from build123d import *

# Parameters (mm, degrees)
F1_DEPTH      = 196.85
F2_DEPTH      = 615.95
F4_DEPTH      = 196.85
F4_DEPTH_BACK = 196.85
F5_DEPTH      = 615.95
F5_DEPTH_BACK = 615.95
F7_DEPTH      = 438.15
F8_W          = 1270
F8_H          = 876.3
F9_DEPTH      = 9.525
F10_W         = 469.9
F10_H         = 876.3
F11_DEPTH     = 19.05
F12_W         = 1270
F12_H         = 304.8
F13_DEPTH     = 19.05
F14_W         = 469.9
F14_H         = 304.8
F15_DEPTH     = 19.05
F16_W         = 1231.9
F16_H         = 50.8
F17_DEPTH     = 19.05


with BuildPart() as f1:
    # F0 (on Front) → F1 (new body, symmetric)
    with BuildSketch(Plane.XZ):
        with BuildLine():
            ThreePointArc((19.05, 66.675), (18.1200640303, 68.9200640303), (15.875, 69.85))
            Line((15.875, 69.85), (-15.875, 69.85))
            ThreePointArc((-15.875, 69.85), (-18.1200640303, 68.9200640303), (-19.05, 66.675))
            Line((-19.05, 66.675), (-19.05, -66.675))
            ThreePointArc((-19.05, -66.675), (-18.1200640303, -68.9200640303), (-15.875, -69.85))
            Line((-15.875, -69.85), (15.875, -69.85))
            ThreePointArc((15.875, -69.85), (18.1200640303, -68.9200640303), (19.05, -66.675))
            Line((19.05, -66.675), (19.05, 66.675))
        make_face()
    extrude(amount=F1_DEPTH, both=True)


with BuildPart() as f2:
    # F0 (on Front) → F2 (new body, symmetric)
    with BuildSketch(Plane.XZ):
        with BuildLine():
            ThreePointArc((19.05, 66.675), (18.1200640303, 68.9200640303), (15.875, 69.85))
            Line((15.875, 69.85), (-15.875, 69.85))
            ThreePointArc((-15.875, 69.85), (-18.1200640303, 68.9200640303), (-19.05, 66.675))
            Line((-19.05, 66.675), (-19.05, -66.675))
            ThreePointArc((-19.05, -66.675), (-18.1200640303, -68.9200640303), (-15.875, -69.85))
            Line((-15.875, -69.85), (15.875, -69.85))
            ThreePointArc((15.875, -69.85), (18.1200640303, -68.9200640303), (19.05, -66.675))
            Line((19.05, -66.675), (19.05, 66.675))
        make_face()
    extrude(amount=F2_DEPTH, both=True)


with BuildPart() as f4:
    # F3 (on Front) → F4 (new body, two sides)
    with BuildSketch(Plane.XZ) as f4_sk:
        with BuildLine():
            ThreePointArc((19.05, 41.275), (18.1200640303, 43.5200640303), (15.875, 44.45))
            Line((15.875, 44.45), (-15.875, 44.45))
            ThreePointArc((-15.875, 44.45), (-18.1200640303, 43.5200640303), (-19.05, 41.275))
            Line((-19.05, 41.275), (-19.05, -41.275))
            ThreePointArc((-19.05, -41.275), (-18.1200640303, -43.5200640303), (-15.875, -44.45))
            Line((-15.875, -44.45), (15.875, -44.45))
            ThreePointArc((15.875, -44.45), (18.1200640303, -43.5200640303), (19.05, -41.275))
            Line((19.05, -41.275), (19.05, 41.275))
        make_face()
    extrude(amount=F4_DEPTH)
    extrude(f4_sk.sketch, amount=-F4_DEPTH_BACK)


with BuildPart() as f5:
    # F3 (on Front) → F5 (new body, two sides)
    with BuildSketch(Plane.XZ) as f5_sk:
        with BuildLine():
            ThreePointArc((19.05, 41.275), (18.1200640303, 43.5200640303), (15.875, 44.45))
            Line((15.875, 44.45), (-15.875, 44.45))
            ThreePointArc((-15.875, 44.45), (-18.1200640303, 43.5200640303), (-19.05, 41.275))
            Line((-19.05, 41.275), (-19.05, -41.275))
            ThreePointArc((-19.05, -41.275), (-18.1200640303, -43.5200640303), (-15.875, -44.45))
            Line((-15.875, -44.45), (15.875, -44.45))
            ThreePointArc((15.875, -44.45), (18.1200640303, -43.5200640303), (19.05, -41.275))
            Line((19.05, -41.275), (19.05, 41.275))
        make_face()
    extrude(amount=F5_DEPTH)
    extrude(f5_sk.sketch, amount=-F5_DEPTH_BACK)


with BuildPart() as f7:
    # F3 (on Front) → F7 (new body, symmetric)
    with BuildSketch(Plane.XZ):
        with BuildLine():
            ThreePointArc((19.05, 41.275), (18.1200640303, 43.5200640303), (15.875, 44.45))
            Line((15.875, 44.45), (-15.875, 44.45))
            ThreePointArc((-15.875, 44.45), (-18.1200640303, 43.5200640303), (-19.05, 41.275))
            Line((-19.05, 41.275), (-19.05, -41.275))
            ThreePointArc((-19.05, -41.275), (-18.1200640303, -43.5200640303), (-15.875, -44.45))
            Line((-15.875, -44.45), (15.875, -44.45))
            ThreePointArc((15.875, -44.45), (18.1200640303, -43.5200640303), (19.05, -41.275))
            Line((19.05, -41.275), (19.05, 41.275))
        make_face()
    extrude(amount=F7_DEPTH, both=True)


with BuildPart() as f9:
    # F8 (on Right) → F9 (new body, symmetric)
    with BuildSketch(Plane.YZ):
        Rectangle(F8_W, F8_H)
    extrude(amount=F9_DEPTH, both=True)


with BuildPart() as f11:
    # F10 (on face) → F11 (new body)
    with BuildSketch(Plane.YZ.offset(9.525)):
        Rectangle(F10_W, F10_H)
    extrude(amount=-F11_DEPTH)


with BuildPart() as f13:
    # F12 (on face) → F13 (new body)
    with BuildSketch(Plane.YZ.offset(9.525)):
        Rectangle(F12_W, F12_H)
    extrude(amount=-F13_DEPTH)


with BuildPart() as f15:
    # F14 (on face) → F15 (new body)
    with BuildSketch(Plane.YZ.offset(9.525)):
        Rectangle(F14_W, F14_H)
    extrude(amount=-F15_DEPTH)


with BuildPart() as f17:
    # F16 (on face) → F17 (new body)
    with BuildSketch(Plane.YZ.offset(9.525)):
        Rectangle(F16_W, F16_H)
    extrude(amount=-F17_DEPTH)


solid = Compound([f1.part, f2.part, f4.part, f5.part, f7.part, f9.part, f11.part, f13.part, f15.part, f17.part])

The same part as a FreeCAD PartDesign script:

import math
import FreeCAD as App
import Part
import Sketcher

V = App.Vector
Q = App.Units.Quantity


def add_polygon(sketch, points):
    """Adds a closed chain of lines whose ends are joined by coincident constraints."""
    first, n = sketch.GeometryCount, len(points)
    for a, b in zip(points, points[1:] + points[:1]):
        sketch.addGeometry(Part.LineSegment(App.Vector(*a, 0), App.Vector(*b, 0)), False)
    for i in range(n):
        sketch.addConstraint(Sketcher.Constraint("Coincident", first + i, 2, first + (i + 1) % n, 1))

doc = App.newDocument("Part")
body = doc.addObject("PartDesign::Body", "Body")

# Sketch on XZ plane
sketch1 = body.newObject("Sketcher::SketchObject", "Sketch")
sketch1.AttachmentSupport = (doc.getObject("XZ_Plane"), [""])
sketch1.MapMode = "FlatFace"
sketch1.addGeometry([
    Part.ArcOfCircle(Part.Circle(V(15.9, 66.7, 0), V(0, 0, 1), 3.2), math.radians(0), math.radians(90)),  # 0
    Part.LineSegment(V(15.9, 69.8, 0), V(-15.9, 69.8, 0)),  # 1
    Part.ArcOfCircle(Part.Circle(V(-15.9, 66.7, 0), V(0, 0, 1), 3.2), math.radians(90), math.radians(180)),  # 2
    Part.LineSegment(V(-19.1, 66.7, 0), V(-19.1, -66.7, 0)),  # 3
    Part.ArcOfCircle(Part.Circle(V(-15.9, -66.7, 0), V(0, 0, 1), 3.2), math.radians(180), math.radians(270)),  # 4
    Part.LineSegment(V(-15.9, -69.8, 0), V(15.9, -69.8, 0)),  # 5
    Part.ArcOfCircle(Part.Circle(V(15.9, -66.7, 0), V(0, 0, 1), 3.2), math.radians(-90), math.radians(0)),  # 6
    Part.LineSegment(V(19.1, -66.7, 0), V(19.1, 66.7, 0)),  # 7
], False)
sketch1.addConstraint([
    Sketcher.Constraint("Tangent", 0, 2, 1, 1),
    Sketcher.Constraint("Tangent", 1, 2, 2, 1),
    Sketcher.Constraint("Tangent", 2, 2, 3, 1),
    Sketcher.Constraint("Tangent", 3, 2, 4, 1),
    Sketcher.Constraint("Tangent", 4, 2, 5, 1),
    Sketcher.Constraint("Tangent", 5, 2, 6, 1),
    Sketcher.Constraint("Tangent", 6, 2, 7, 1),
    Sketcher.Constraint("Tangent", 7, 2, 0, 1),
    Sketcher.Constraint("Horizontal", 1),
    Sketcher.Constraint("Vertical", 3),
    Sketcher.Constraint("Horizontal", 5),
    Sketcher.Constraint("Vertical", 7),
    Sketcher.Constraint("Equal", 0, 2),
    Sketcher.Constraint("Equal", 2, 4),
    Sketcher.Constraint("Equal", 4, 6),
    Sketcher.Constraint("Symmetric", 0, 3, 4, 3, -1, 1),
    Sketcher.Constraint("Radius", 0, Q("0.125 in")),
    Sketcher.Constraint("DistanceX", 1, 2, 1, 1, Q("1.25 in")),
    Sketcher.Constraint("DistanceY", 3, 2, 3, 1, Q("5.25 in")),
])
pad1 = body.newObject("PartDesign::Pad", "Pad")
pad1.Profile = sketch1
pad1.Length = Q("15.5 in")
pad1.Midplane = True
body2 = doc.addObject("PartDesign::Body", "Body001")

# Sketch on XZ plane
sketch2 = body2.newObject("Sketcher::SketchObject", "Sketch001")
sketch2.AttachmentSupport = (doc.getObject("XZ_Plane001"), [""])
sketch2.MapMode = "FlatFace"
sketch2.addGeometry([
    Part.ArcOfCircle(Part.Circle(V(15.9, 66.7, 0), V(0, 0, 1), 3.2), math.radians(0), math.radians(90)),  # 0
    Part.LineSegment(V(15.9, 69.8, 0), V(-15.9, 69.8, 0)),  # 1
    Part.ArcOfCircle(Part.Circle(V(-15.9, 66.7, 0), V(0, 0, 1), 3.2), math.radians(90), math.radians(180)),  # 2
    Part.LineSegment(V(-19.1, 66.7, 0), V(-19.1, -66.7, 0)),  # 3
    Part.ArcOfCircle(Part.Circle(V(-15.9, -66.7, 0), V(0, 0, 1), 3.2), math.radians(180), math.radians(270)),  # 4
    Part.LineSegment(V(-15.9, -69.8, 0), V(15.9, -69.8, 0)),  # 5
    Part.ArcOfCircle(Part.Circle(V(15.9, -66.7, 0), V(0, 0, 1), 3.2), math.radians(-90), math.radians(0)),  # 6
    Part.LineSegment(V(19.1, -66.7, 0), V(19.1, 66.7, 0)),  # 7
], False)
sketch2.addConstraint([
    Sketcher.Constraint("Tangent", 0, 2, 1, 1),
    Sketcher.Constraint("Tangent", 1, 2, 2, 1),
    Sketcher.Constraint("Tangent", 2, 2, 3, 1),
    Sketcher.Constraint("Tangent", 3, 2, 4, 1),
    Sketcher.Constraint("Tangent", 4, 2, 5, 1),
    Sketcher.Constraint("Tangent", 5, 2, 6, 1),
    Sketcher.Constraint("Tangent", 6, 2, 7, 1),
    Sketcher.Constraint("Tangent", 7, 2, 0, 1),
    Sketcher.Constraint("Horizontal", 1),
    Sketcher.Constraint("Vertical", 3),
    Sketcher.Constraint("Horizontal", 5),
    Sketcher.Constraint("Vertical", 7),
    Sketcher.Constraint("Equal", 0, 2),
    Sketcher.Constraint("Equal", 2, 4),
    Sketcher.Constraint("Equal", 4, 6),
    Sketcher.Constraint("Symmetric", 0, 3, 4, 3, -1, 1),
    Sketcher.Constraint("Radius", 0, Q("0.125 in")),
    Sketcher.Constraint("DistanceX", 1, 2, 1, 1, Q("1.25 in")),
    Sketcher.Constraint("DistanceY", 3, 2, 3, 1, Q("5.25 in")),
])
pad2 = body2.newObject("PartDesign::Pad", "Pad001")
pad2.Profile = sketch2
pad2.Length = Q("48.5 in")
pad2.Midplane = True
body3 = doc.addObject("PartDesign::Body", "Body002")

# Sketch on XZ plane
sketch3 = body3.newObject("Sketcher::SketchObject", "Sketch002")
sketch3.AttachmentSupport = (doc.getObject("XZ_Plane002"), [""])
sketch3.MapMode = "FlatFace"
sketch3.addGeometry([
    Part.ArcOfCircle(Part.Circle(V(15.9, 41.3, 0), V(0, 0, 1), 3.2), math.radians(0), math.radians(90)),  # 0
    Part.LineSegment(V(15.9, 44.5, 0), V(-15.9, 44.5, 0)),  # 1
    Part.ArcOfCircle(Part.Circle(V(-15.9, 41.3, 0), V(0, 0, 1), 3.2), math.radians(90), math.radians(180)),  # 2
    Part.LineSegment(V(-19.1, 41.3, 0), V(-19.1, -41.3, 0)),  # 3
    Part.ArcOfCircle(Part.Circle(V(-15.9, -41.3, 0), V(0, 0, 1), 3.2), math.radians(180), math.radians(270)),  # 4
    Part.LineSegment(V(-15.9, -44.5, 0), V(15.9, -44.5, 0)),  # 5
    Part.ArcOfCircle(Part.Circle(V(15.9, -41.3, 0), V(0, 0, 1), 3.2), math.radians(-90), math.radians(0)),  # 6
    Part.LineSegment(V(19.1, -41.3, 0), V(19.1, 41.3, 0)),  # 7
], False)
sketch3.addConstraint([
    Sketcher.Constraint("Tangent", 0, 2, 1, 1),
    Sketcher.Constraint("Tangent", 1, 2, 2, 1),
    Sketcher.Constraint("Tangent", 2, 2, 3, 1),
    Sketcher.Constraint("Tangent", 3, 2, 4, 1),
    Sketcher.Constraint("Tangent", 4, 2, 5, 1),
    Sketcher.Constraint("Tangent", 5, 2, 6, 1),
    Sketcher.Constraint("Tangent", 6, 2, 7, 1),
    Sketcher.Constraint("Tangent", 7, 2, 0, 1),
    Sketcher.Constraint("Horizontal", 1),
    Sketcher.Constraint("Vertical", 3),
    Sketcher.Constraint("Horizontal", 5),
    Sketcher.Constraint("Vertical", 7),
    Sketcher.Constraint("Equal", 0, 2),
    Sketcher.Constraint("Equal", 2, 4),
    Sketcher.Constraint("Equal", 4, 6),
    Sketcher.Constraint("Symmetric", 0, 3, 4, 3, -1, 1),
    Sketcher.Constraint("Radius", 0, Q("0.125 in")),
    Sketcher.Constraint("DistanceX", 1, 2, 1, 1, Q("1.25 in")),
    Sketcher.Constraint("DistanceY", 3, 2, 3, 1, Q("3.25 in")),
])
pad3 = body3.newObject("PartDesign::Pad", "Pad002")
pad3.Profile = sketch3
pad3.Type = "TwoLengths"
pad3.Length = Q("7.75 in")
pad3.Length2 = Q("7.75 in")
body4 = doc.addObject("PartDesign::Body", "Body003")

# Sketch on XZ plane
sketch4 = body4.newObject("Sketcher::SketchObject", "Sketch003")
sketch4.AttachmentSupport = (doc.getObject("XZ_Plane003"), [""])
sketch4.MapMode = "FlatFace"
sketch4.addGeometry([
    Part.ArcOfCircle(Part.Circle(V(15.9, 41.3, 0), V(0, 0, 1), 3.2), math.radians(0), math.radians(90)),  # 0
    Part.LineSegment(V(15.9, 44.5, 0), V(-15.9, 44.5, 0)),  # 1
    Part.ArcOfCircle(Part.Circle(V(-15.9, 41.3, 0), V(0, 0, 1), 3.2), math.radians(90), math.radians(180)),  # 2
    Part.LineSegment(V(-19.1, 41.3, 0), V(-19.1, -41.3, 0)),  # 3
    Part.ArcOfCircle(Part.Circle(V(-15.9, -41.3, 0), V(0, 0, 1), 3.2), math.radians(180), math.radians(270)),  # 4
    Part.LineSegment(V(-15.9, -44.5, 0), V(15.9, -44.5, 0)),  # 5
    Part.ArcOfCircle(Part.Circle(V(15.9, -41.3, 0), V(0, 0, 1), 3.2), math.radians(-90), math.radians(0)),  # 6
    Part.LineSegment(V(19.1, -41.3, 0), V(19.1, 41.3, 0)),  # 7
], False)
sketch4.addConstraint([
    Sketcher.Constraint("Tangent", 0, 2, 1, 1),
    Sketcher.Constraint("Tangent", 1, 2, 2, 1),
    Sketcher.Constraint("Tangent", 2, 2, 3, 1),
    Sketcher.Constraint("Tangent", 3, 2, 4, 1),
    Sketcher.Constraint("Tangent", 4, 2, 5, 1),
    Sketcher.Constraint("Tangent", 5, 2, 6, 1),
    Sketcher.Constraint("Tangent", 6, 2, 7, 1),
    Sketcher.Constraint("Tangent", 7, 2, 0, 1),
    Sketcher.Constraint("Horizontal", 1),
    Sketcher.Constraint("Vertical", 3),
    Sketcher.Constraint("Horizontal", 5),
    Sketcher.Constraint("Vertical", 7),
    Sketcher.Constraint("Equal", 0, 2),
    Sketcher.Constraint("Equal", 2, 4),
    Sketcher.Constraint("Equal", 4, 6),
    Sketcher.Constraint("Symmetric", 0, 3, 4, 3, -1, 1),
    Sketcher.Constraint("Radius", 0, Q("0.125 in")),
    Sketcher.Constraint("DistanceX", 1, 2, 1, 1, Q("1.25 in")),
    Sketcher.Constraint("DistanceY", 3, 2, 3, 1, Q("3.25 in")),
])
pad4 = body4.newObject("PartDesign::Pad", "Pad003")
pad4.Profile = sketch4
pad4.Type = "TwoLengths"
pad4.Length = Q("24.25 in")
pad4.Length2 = Q("24.25 in")
body5 = doc.addObject("PartDesign::Body", "Body004")

# Sketch on XZ plane
sketch5 = body5.newObject("Sketcher::SketchObject", "Sketch004")
sketch5.AttachmentSupport = (doc.getObject("XZ_Plane004"), [""])
sketch5.MapMode = "FlatFace"
sketch5.addGeometry([
    Part.ArcOfCircle(Part.Circle(V(15.9, 41.3, 0), V(0, 0, 1), 3.2), math.radians(0), math.radians(90)),  # 0
    Part.LineSegment(V(15.9, 44.5, 0), V(-15.9, 44.5, 0)),  # 1
    Part.ArcOfCircle(Part.Circle(V(-15.9, 41.3, 0), V(0, 0, 1), 3.2), math.radians(90), math.radians(180)),  # 2
    Part.LineSegment(V(-19.1, 41.3, 0), V(-19.1, -41.3, 0)),  # 3
    Part.ArcOfCircle(Part.Circle(V(-15.9, -41.3, 0), V(0, 0, 1), 3.2), math.radians(180), math.radians(270)),  # 4
    Part.LineSegment(V(-15.9, -44.5, 0), V(15.9, -44.5, 0)),  # 5
    Part.ArcOfCircle(Part.Circle(V(15.9, -41.3, 0), V(0, 0, 1), 3.2), math.radians(-90), math.radians(0)),  # 6
    Part.LineSegment(V(19.1, -41.3, 0), V(19.1, 41.3, 0)),  # 7
], False)
sketch5.addConstraint([
    Sketcher.Constraint("Tangent", 0, 2, 1, 1),
    Sketcher.Constraint("Tangent", 1, 2, 2, 1),
    Sketcher.Constraint("Tangent", 2, 2, 3, 1),
    Sketcher.Constraint("Tangent", 3, 2, 4, 1),
    Sketcher.Constraint("Tangent", 4, 2, 5, 1),
    Sketcher.Constraint("Tangent", 5, 2, 6, 1),
    Sketcher.Constraint("Tangent", 6, 2, 7, 1),
    Sketcher.Constraint("Tangent", 7, 2, 0, 1),
    Sketcher.Constraint("Horizontal", 1),
    Sketcher.Constraint("Vertical", 3),
    Sketcher.Constraint("Horizontal", 5),
    Sketcher.Constraint("Vertical", 7),
    Sketcher.Constraint("Equal", 0, 2),
    Sketcher.Constraint("Equal", 2, 4),
    Sketcher.Constraint("Equal", 4, 6),
    Sketcher.Constraint("Symmetric", 0, 3, 4, 3, -1, 1),
    Sketcher.Constraint("Radius", 0, Q("0.125 in")),
    Sketcher.Constraint("DistanceX", 1, 2, 1, 1, Q("1.25 in")),
    Sketcher.Constraint("DistanceY", 3, 2, 3, 1, Q("3.25 in")),
])
pad5 = body5.newObject("PartDesign::Pad", "Pad004")
pad5.Profile = sketch5
pad5.Length = Q("34.5 in")
pad5.Midplane = True
body6 = doc.addObject("PartDesign::Body", "Body005")

# Sketch on YZ plane
sketch6 = body6.newObject("Sketcher::SketchObject", "Sketch005")
sketch6.AttachmentSupport = (doc.getObject("YZ_Plane005"), [""])
sketch6.MapMode = "FlatFace"
add_polygon(sketch6, [(-635, 438), (-635, -438), (635, -438), (635, 438)])  # lines 0-3
sketch6.addConstraint([
    Sketcher.Constraint("Vertical", 0),
    Sketcher.Constraint("Horizontal", 1),
    Sketcher.Constraint("Vertical", 2),
    Sketcher.Constraint("Horizontal", 3),
    Sketcher.Constraint("Symmetric", 0, 2, 2, 2, -1, 1),
    Sketcher.Constraint("DistanceX", 1, 1, 1, 2, Q("50 in")),
    Sketcher.Constraint("DistanceY", 0, 2, 0, 1, Q("34.5 in")),
])
pad6 = body6.newObject("PartDesign::Pad", "Pad005")
pad6.Profile = sketch6
pad6.Length = Q("0.75 in")
pad6.Midplane = True
body7 = doc.addObject("PartDesign::Body", "Body006")

# Sketch on YZ plane
sketch7 = body7.newObject("Sketcher::SketchObject", "Sketch006")
sketch7.AttachmentSupport = (doc.getObject("YZ_Plane006"), [""])
sketch7.MapMode = "FlatFace"
sketch7.AttachmentOffset = App.Placement(V(0, 0, 0.375 * 25.4), App.Rotation())
add_polygon(sketch7, [(-235, 438), (-235, -438), (235, -438), (235, 438)])  # lines 0-3
sketch7.addConstraint([
    Sketcher.Constraint("Vertical", 0),
    Sketcher.Constraint("Horizontal", 1),
    Sketcher.Constraint("Vertical", 2),
    Sketcher.Constraint("Horizontal", 3),
    Sketcher.Constraint("Symmetric", 0, 2, 2, 2, -1, 1),
    Sketcher.Constraint("DistanceX", 1, 1, 1, 2, Q("18.5 in")),
    Sketcher.Constraint("DistanceY", 0, 2, 0, 1, Q("34.5 in")),
])
pad7 = body7.newObject("PartDesign::Pad", "Pad006")
pad7.Profile = sketch7
pad7.Length = Q("0.75 in")
pad7.Reversed = True
body8 = doc.addObject("PartDesign::Body", "Body007")

# Sketch on YZ plane
sketch8 = body8.newObject("Sketcher::SketchObject", "Sketch007")
sketch8.AttachmentSupport = (doc.getObject("YZ_Plane007"), [""])
sketch8.MapMode = "FlatFace"
sketch8.AttachmentOffset = App.Placement(V(0, 0, 0.375 * 25.4), App.Rotation())
add_polygon(sketch8, [(-635, 152), (-635, -152), (635, -152), (635, 152)])  # lines 0-3
sketch8.addConstraint([
    Sketcher.Constraint("Vertical", 0),
    Sketcher.Constraint("Horizontal", 1),
    Sketcher.Constraint("Vertical", 2),
    Sketcher.Constraint("Horizontal", 3),
    Sketcher.Constraint("Symmetric", 0, 2, 2, 2, -1, 1),
    Sketcher.Constraint("DistanceX", 1, 1, 1, 2, Q("50 in")),
    Sketcher.Constraint("DistanceY", 0, 2, 0, 1, Q("12 in")),
])
pad8 = body8.newObject("PartDesign::Pad", "Pad007")
pad8.Profile = sketch8
pad8.Length = Q("0.75 in")
pad8.Reversed = True
body9 = doc.addObject("PartDesign::Body", "Body008")

# Sketch on YZ plane
sketch9 = body9.newObject("Sketcher::SketchObject", "Sketch008")
sketch9.AttachmentSupport = (doc.getObject("YZ_Plane008"), [""])
sketch9.MapMode = "FlatFace"
sketch9.AttachmentOffset = App.Placement(V(0, 0, 0.375 * 25.4), App.Rotation())
add_polygon(sketch9, [(-235, 152), (-235, -152), (235, -152), (235, 152)])  # lines 0-3
sketch9.addConstraint([
    Sketcher.Constraint("Vertical", 0),
    Sketcher.Constraint("Horizontal", 1),
    Sketcher.Constraint("Vertical", 2),
    Sketcher.Constraint("Horizontal", 3),
    Sketcher.Constraint("Symmetric", 0, 2, 2, 2, -1, 1),
    Sketcher.Constraint("DistanceY", 0, 2, 0, 1, Q("12 in")),
    Sketcher.Constraint("DistanceX", 1, 1, 1, 2, Q("18.5 in")),
])
pad9 = body9.newObject("PartDesign::Pad", "Pad008")
pad9.Profile = sketch9
pad9.Length = Q("0.75 in")
pad9.Reversed = True
body10 = doc.addObject("PartDesign::Body", "Body009")

# Sketch on YZ plane
sketch10 = body10.newObject("Sketcher::SketchObject", "Sketch009")
sketch10.AttachmentSupport = (doc.getObject("YZ_Plane009"), [""])
sketch10.MapMode = "FlatFace"
sketch10.AttachmentOffset = App.Placement(V(0, 0, 0.375 * 25.4), App.Rotation())
add_polygon(sketch10, [(-616, 25), (-616, -25), (616, -25), (616, 25)])  # lines 0-3
sketch10.addConstraint([
    Sketcher.Constraint("Vertical", 0),
    Sketcher.Constraint("Horizontal", 1),
    Sketcher.Constraint("Vertical", 2),
    Sketcher.Constraint("Horizontal", 3),
    Sketcher.Constraint("Symmetric", 0, 2, 2, 2, -1, 1),
    Sketcher.Constraint("DistanceY", 0, 2, 0, 1, Q("2 in")),
    Sketcher.Constraint("DistanceX", 1, 1, 1, 2, Q("48.5 in")),
])
pad10 = body10.newObject("PartDesign::Pad", "Pad009")
pad10.Profile = sketch10
pad10.Length = Q("0.75 in")
pad10.Reversed = True

doc.recompute()
